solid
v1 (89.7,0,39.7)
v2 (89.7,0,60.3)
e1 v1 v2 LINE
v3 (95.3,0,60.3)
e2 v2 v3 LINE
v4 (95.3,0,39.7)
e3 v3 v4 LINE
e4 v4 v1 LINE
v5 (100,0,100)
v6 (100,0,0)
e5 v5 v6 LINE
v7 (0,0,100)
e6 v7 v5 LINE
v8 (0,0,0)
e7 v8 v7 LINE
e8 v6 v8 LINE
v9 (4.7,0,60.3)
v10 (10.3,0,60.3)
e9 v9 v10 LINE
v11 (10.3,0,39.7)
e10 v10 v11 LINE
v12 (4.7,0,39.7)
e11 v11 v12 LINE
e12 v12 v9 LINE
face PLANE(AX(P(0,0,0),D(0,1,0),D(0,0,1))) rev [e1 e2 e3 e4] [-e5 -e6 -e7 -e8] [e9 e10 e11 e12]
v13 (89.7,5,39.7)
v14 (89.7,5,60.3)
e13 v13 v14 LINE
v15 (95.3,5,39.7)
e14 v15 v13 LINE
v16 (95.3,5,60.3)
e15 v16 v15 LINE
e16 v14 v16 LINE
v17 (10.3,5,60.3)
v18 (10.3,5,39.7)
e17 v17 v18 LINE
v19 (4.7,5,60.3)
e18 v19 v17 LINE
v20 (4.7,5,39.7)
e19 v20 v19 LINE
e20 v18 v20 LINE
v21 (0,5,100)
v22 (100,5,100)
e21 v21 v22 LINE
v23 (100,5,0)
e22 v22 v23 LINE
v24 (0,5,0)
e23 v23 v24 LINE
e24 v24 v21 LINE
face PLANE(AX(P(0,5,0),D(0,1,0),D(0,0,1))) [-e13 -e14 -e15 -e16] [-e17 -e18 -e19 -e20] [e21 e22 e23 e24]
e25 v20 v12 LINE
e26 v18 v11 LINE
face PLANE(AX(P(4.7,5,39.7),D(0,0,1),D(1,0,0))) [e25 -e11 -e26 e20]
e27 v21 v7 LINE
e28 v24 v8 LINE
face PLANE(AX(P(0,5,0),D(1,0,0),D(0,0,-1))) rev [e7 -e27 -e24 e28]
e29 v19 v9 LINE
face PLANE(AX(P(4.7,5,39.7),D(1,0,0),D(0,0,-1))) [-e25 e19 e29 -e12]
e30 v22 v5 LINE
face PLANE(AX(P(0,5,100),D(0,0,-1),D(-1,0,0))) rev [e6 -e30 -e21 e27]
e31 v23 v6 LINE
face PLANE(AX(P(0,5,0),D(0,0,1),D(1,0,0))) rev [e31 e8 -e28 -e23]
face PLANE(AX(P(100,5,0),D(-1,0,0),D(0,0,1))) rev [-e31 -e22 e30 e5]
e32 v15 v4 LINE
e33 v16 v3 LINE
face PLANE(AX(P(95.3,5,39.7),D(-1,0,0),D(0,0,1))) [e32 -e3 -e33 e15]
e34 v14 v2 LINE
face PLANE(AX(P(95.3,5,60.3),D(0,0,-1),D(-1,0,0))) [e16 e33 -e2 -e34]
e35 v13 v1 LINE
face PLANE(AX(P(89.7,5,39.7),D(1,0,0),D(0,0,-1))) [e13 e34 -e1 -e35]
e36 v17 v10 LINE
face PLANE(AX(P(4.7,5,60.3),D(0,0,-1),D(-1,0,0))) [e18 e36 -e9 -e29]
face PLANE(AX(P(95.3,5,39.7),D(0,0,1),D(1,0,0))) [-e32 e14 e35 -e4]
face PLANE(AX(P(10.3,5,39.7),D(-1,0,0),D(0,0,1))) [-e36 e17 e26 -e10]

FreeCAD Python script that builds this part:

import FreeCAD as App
import Part
import Sketcher

doc = App.newDocument("Part")
body = doc.addObject("PartDesign::Body", "Body")

sketch1 = doc.addObject("Sketcher::SketchObject", "Sketch")
body.addObject(sketch1)
sketch1.AttachmentSupport = (doc.XZ_Plane, [""])
sketch1.MapMode = "FlatFace"
sketch1.addGeometry(Part.LineSegment(App.Vector(0, 0, 0), App.Vector(0, 100, 0)), False)
sketch1.addGeometry(Part.LineSegment(App.Vector(0, 100, 0), App.Vector(100, 100, 0)), False)
sketch1.addGeometry(Part.LineSegment(App.Vector(100, 100, 0), App.Vector(100, 0, 0)), False)
sketch1.addGeometry(Part.LineSegment(App.Vector(100, 0, 0), App.Vector(0, 0, 0)), False)
sketch1.addGeometry(Part.LineSegment(App.Vector(10, 60, 0), App.Vector(5, 60, 0)), False)
sketch1.addGeometry(Part.LineSegment(App.Vector(5, 60, 0), App.Vector(5, 40, 0)), False)
sketch1.addGeometry(Part.LineSegment(App.Vector(5, 40, 0), App.Vector(10, 40, 0)), False)
sketch1.addGeometry(Part.LineSegment(App.Vector(10, 40, 0), App.Vector(10, 60, 0)), False)
sketch1.addGeometry(Part.LineSegment(App.Vector(95, 60, 0), App.Vector(90, 60, 0)), False)
sketch1.addGeometry(Part.LineSegment(App.Vector(90, 60, 0), App.Vector(90, 40, 0)), False)
sketch1.addGeometry(Part.LineSegment(App.Vector(90, 40, 0), App.Vector(95, 40, 0)), False)
sketch1.addGeometry(Part.LineSegment(App.Vector(95, 40, 0), App.Vector(95, 60, 0)), False)
sketch1.addConstraint(Sketcher.Constraint("Coincident", 0, 2, 1, 1))
sketch1.addConstraint(Sketcher.Constraint("Coincident", 1, 2, 2, 1))
sketch1.addConstraint(Sketcher.Constraint("Coincident", 2, 2, 3, 1))
sketch1.addConstraint(Sketcher.Constraint("Coincident", 3, 2, 0, 1))
sketch1.addConstraint(Sketcher.Constraint("Coincident", 4, 2, 5, 1))
sketch1.addConstraint(Sketcher.Constraint("Coincident", 5, 2, 6, 1))
sketch1.addConstraint(Sketcher.Constraint("Coincident", 6, 2, 7, 1))
sketch1.addConstraint(Sketcher.Constraint("Coincident", 7, 2, 4, 1))
sketch1.addConstraint(Sketcher.Constraint("Coincident", 8, 2, 9, 1))
sketch1.addConstraint(Sketcher.Constraint("Coincident", 9, 2, 10, 1))
sketch1.addConstraint(Sketcher.Constraint("Coincident", 10, 2, 11, 1))
sketch1.addConstraint(Sketcher.Constraint("Coincident", 11, 2, 8, 1))
sketch1.addConstraint(Sketcher.Constraint("Vertical", 0))
sketch1.addConstraint(Sketcher.Constraint("Horizontal", 1))
sketch1.addConstraint(Sketcher.Constraint("Vertical", 2))
sketch1.addConstraint(Sketcher.Constraint("Horizontal", 3))
sketch1.addConstraint(Sketcher.Constraint("Horizontal", 4))
sketch1.addConstraint(Sketcher.Constraint("Vertical", 5))
sketch1.addConstraint(Sketcher.Constraint("Horizontal", 6))
sketch1.addConstraint(Sketcher.Constraint("Vertical", 7))
sketch1.addConstraint(Sketcher.Constraint("Horizontal", 8))
sketch1.addConstraint(Sketcher.Constraint("Vertical", 9))
sketch1.addConstraint(Sketcher.Constraint("Horizontal", 10))
sketch1.addConstraint(Sketcher.Constraint("Vertical", 11))
sketch1.addConstraint(Sketcher.Constraint("Coincident", 3, 2, -1, 1))
sketch1.addConstraint(Sketcher.Constraint("Horizontal", 7, 2, 8, 2))
sketch1.addConstraint(Sketcher.Constraint("Horizontal", 6, 2, 9, 2))
sketch1.addConstraint(Sketcher.Constraint("Equal", 6, 8))
sketch1.addConstraint(Sketcher.Constraint("Equal", 3, 0))
sketch1.addConstraint(Sketcher.Constraint("DistanceX", 1, 1, 1, 2, 100.0))
sketch1.addConstraint(Sketcher.Constraint("DistanceX", 4, 2, 4, 1, 5.6))
sketch1.addConstraint(Sketcher.Constraint("DistanceY", 5, 2, 5, 1, 20.6))
sketch1.addConstraint(Sketcher.Constraint("DistanceX", 4, 2, 8, 2, 85.0))
sketch1.addConstraint(Sketcher.Constraint("DistanceX", -1, 1, 4, 2, 4.7))
sketch1.addConstraint(Sketcher.Constraint("DistanceY", -1, 1, 4, 2, 60.3))
pad1 = doc.addObject("PartDesign::Pad", "Pad")
body.addObject(pad1)
pad1.Profile = sketch1
pad1.Length = 5
pad1.Reversed = True

doc.recompute()
